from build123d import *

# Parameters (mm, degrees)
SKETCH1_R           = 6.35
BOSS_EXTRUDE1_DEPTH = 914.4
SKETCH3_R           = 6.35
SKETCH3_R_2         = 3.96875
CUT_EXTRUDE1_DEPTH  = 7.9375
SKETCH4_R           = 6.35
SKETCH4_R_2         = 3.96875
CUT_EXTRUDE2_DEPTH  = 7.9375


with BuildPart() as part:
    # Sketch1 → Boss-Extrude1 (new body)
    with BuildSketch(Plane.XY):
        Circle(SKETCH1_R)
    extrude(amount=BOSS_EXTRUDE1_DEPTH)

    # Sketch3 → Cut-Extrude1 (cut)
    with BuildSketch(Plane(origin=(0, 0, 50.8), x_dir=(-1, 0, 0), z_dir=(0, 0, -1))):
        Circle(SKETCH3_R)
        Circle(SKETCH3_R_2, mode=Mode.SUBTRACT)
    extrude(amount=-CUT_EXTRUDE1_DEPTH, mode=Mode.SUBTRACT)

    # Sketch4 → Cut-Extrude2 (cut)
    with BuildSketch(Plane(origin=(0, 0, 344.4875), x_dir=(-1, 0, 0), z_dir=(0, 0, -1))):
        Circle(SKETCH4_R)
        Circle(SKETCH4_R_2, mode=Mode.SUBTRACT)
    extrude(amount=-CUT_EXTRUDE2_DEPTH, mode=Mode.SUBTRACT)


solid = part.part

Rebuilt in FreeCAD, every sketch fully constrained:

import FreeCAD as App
import Part
import Sketcher
Q = App.Units.Quantity

doc = App.newDocument("Part")
body = doc.addObject("PartDesign::Body", "Body")

# Sketch on XY plane
sketch1 = body.newObject("Sketcher::SketchObject", "Sketch")
sketch1.AttachmentSupport = (doc.getObject("XY_Plane"), [""])
sketch1.MapMode = "FlatFace"
sketch1.addGeometry(Part.Circle(App.Vector(0, 0, 0), App.Vector(0, 0, 1), 6.35), False)
sketch1.addConstraint([
    Sketcher.Constraint("Coincident", 0, 3, -1, 1),
    Sketcher.Constraint("Diameter", 0, Q("0.5 in")),
])
pad1 = body.newObject("PartDesign::Pad", "Pad")
pad1.Profile = sketch1
pad1.Length = Q("36 in")

# Sketch on XY plane
sketch2 = body.newObject("Sketcher::SketchObject", "Sketch001")
sketch2.AttachmentSupport = (doc.getObject("XY_Plane"), [""])
sketch2.MapMode = "FlatFace"
sketch2.AttachmentOffset = App.Placement(App.Vector(0, 0, 2 * 25.4), App.Rotation())
sketch2.addGeometry([
    Part.Circle(App.Vector(0, 0, 0), App.Vector(0, 0, 1), 6.35),
    Part.Circle(App.Vector(0, 0, 0), App.Vector(0, 0, 1), 3.96875),
], False)
sketch2.addConstraint([
    Sketcher.Constraint("Coincident", 0, 3, -1, 1),
    Sketcher.Constraint("Coincident", 1, 3, -1, 1),
    Sketcher.Constraint("Diameter", 0, Q("0.5 in")),
    Sketcher.Constraint("Diameter", 1, Q("0.3125 in")),
])
pocket1 = body.newObject("PartDesign::Pocket", "Pocket")
pocket1.Profile = sketch2
pocket1.Length = Q("0.3125 in")
pocket1.Reversed = True

# Sketch on XY plane
sketch3 = body.newObject("Sketcher::SketchObject", "Sketch002")
sketch3.AttachmentSupport = (doc.getObject("XY_Plane"), [""])
sketch3.MapMode = "FlatFace"
sketch3.AttachmentOffset = App.Placement(App.Vector(0, 0, 13.5625 * 25.4), App.Rotation())
sketch3.addGeometry([
    Part.Circle(App.Vector(0, 0, 0), App.Vector(0, 0, 1), 6.35),
    Part.Circle(App.Vector(0, 0, 0), App.Vector(0, 0, 1), 3.96875),
], False)
sketch3.addConstraint([
    Sketcher.Constraint("Coincident", 0, 3, -1, 1),
    Sketcher.Constraint("Coincident", 1, 3, -1, 1),
    Sketcher.Constraint("Diameter", 0, Q("0.5 in")),
    Sketcher.Constraint("Diameter", 1, Q("0.3125 in")),
])
pocket2 = body.newObject("PartDesign::Pocket", "Pocket001")
pocket2.Profile = sketch3
pocket2.Length = Q("0.3125 in")
pocket2.Reversed = True

doc.recompute()
